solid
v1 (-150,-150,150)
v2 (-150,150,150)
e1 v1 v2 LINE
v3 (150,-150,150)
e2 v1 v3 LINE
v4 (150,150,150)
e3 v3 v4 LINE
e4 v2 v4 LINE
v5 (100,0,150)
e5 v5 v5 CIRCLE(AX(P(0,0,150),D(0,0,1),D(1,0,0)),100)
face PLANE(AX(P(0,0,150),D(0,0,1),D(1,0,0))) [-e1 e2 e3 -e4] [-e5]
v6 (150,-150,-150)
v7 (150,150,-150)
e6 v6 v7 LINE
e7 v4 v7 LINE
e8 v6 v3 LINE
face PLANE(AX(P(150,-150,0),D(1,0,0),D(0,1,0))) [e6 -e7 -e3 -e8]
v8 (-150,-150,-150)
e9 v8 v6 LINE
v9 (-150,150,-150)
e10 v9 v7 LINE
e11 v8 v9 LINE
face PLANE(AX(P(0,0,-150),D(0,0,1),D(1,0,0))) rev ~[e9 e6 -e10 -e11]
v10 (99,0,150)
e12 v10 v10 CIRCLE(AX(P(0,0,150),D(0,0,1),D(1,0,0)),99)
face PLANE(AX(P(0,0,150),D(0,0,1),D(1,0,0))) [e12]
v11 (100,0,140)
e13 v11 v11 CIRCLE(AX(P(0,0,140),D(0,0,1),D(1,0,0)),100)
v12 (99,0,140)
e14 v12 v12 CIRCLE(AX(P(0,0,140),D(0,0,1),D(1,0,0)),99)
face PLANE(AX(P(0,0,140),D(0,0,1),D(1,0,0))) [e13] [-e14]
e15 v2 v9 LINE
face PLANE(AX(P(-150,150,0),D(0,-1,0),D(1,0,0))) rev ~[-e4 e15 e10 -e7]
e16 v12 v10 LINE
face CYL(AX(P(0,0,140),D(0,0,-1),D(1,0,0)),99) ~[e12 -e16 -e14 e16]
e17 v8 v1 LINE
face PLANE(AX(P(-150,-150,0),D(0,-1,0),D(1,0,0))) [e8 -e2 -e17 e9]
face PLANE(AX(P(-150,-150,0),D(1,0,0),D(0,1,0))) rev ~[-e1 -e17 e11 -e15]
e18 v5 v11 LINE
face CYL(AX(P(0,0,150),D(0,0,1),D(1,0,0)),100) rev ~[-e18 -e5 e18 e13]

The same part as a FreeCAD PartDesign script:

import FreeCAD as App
import Part
import Sketcher

doc = App.newDocument("Part")
body = doc.addObject("PartDesign::Body", "Body")

sketch1 = doc.addObject("Sketcher::SketchObject", "Sketch")
body.addObject(sketch1)
sketch1.AttachmentSupport = (doc.XY_Plane, [""])
sketch1.MapMode = "FlatFace"
sketch1.addGeometry(Part.LineSegment(App.Vector(-150, 150, 0), App.Vector(-150, -150, 0)), False)
sketch1.addGeometry(Part.LineSegment(App.Vector(-150, -150, 0), App.Vector(150, -150, 0)), False)
sketch1.addGeometry(Part.LineSegment(App.Vector(150, -150, 0), App.Vector(150, 150, 0)), False)
sketch1.addGeometry(Part.LineSegment(App.Vector(150, 150, 0), App.Vector(-150, 150, 0)), False)
sketch1.addConstraint(Sketcher.Constraint("Coincident", 0, 2, 1, 1))
sketch1.addConstraint(Sketcher.Constraint("Coincident", 1, 2, 2, 1))
sketch1.addConstraint(Sketcher.Constraint("Coincident", 2, 2, 3, 1))
sketch1.addConstraint(Sketcher.Constraint("Coincident", 3, 2, 0, 1))
sketch1.addConstraint(Sketcher.Constraint("Vertical", 0))
sketch1.addConstraint(Sketcher.Constraint("Horizontal", 1))
sketch1.addConstraint(Sketcher.Constraint("Vertical", 2))
sketch1.addConstraint(Sketcher.Constraint("Horizontal", 3))
sketch1.addConstraint(Sketcher.Constraint("Symmetric", 0, 2, 2, 2, -1, 1))
sketch1.addConstraint(Sketcher.Constraint("Equal", 3, 0))
sketch1.addConstraint(Sketcher.Constraint("DistanceX", 1, 1, 1, 2, 300.0))
pad1 = doc.addObject("PartDesign::Pad", "Pad")
body.addObject(pad1)
pad1.Profile = sketch1
pad1.Length = 300
pad1.Midplane = True

sketch2 = doc.addObject("Sketcher::SketchObject", "Sketch001")
body.addObject(sketch2)
sketch2.AttachmentSupport = (doc.XY_Plane, [""])
sketch2.MapMode = "FlatFace"
sketch2.AttachmentOffset = App.Placement(App.Vector(0, 0, 150), App.Rotation())
sketch2.addGeometry(Part.Circle(App.Vector(0, 0, 0), App.Vector(0, 0, 1), 100), False)
sketch2.addConstraint(Sketcher.Constraint("Coincident", 0, 3, -1, 1))
sketch2.addConstraint(Sketcher.Constraint("Diameter", 0, 200.0))
pocket1 = doc.addObject("PartDesign::Pocket", "Pocket")
body.addObject(pocket1)
pocket1.Profile = sketch2
pocket1.Length = 10

sketch3 = doc.addObject("Sketcher::SketchObject", "Sketch002")
body.addObject(sketch3)
sketch3.AttachmentSupport = (doc.XY_Plane, [""])
sketch3.MapMode = "FlatFace"
sketch3.AttachmentOffset = App.Placement(App.Vector(0, 0, 140), App.Rotation())
sketch3.addGeometry(Part.Circle(App.Vector(0, 0, 0), App.Vector(0, 0, 1), 99), False)
sketch3.addConstraint(Sketcher.Constraint("Coincident", 0, 3, -1, 1))
sketch3.addConstraint(Sketcher.Constraint("Diameter", 0, 198.0))
pad2 = doc.addObject("PartDesign::Pad", "Pad001")
body.addObject(pad2)
pad2.Profile = sketch3
pad2.Length = 10

doc.recompute()
